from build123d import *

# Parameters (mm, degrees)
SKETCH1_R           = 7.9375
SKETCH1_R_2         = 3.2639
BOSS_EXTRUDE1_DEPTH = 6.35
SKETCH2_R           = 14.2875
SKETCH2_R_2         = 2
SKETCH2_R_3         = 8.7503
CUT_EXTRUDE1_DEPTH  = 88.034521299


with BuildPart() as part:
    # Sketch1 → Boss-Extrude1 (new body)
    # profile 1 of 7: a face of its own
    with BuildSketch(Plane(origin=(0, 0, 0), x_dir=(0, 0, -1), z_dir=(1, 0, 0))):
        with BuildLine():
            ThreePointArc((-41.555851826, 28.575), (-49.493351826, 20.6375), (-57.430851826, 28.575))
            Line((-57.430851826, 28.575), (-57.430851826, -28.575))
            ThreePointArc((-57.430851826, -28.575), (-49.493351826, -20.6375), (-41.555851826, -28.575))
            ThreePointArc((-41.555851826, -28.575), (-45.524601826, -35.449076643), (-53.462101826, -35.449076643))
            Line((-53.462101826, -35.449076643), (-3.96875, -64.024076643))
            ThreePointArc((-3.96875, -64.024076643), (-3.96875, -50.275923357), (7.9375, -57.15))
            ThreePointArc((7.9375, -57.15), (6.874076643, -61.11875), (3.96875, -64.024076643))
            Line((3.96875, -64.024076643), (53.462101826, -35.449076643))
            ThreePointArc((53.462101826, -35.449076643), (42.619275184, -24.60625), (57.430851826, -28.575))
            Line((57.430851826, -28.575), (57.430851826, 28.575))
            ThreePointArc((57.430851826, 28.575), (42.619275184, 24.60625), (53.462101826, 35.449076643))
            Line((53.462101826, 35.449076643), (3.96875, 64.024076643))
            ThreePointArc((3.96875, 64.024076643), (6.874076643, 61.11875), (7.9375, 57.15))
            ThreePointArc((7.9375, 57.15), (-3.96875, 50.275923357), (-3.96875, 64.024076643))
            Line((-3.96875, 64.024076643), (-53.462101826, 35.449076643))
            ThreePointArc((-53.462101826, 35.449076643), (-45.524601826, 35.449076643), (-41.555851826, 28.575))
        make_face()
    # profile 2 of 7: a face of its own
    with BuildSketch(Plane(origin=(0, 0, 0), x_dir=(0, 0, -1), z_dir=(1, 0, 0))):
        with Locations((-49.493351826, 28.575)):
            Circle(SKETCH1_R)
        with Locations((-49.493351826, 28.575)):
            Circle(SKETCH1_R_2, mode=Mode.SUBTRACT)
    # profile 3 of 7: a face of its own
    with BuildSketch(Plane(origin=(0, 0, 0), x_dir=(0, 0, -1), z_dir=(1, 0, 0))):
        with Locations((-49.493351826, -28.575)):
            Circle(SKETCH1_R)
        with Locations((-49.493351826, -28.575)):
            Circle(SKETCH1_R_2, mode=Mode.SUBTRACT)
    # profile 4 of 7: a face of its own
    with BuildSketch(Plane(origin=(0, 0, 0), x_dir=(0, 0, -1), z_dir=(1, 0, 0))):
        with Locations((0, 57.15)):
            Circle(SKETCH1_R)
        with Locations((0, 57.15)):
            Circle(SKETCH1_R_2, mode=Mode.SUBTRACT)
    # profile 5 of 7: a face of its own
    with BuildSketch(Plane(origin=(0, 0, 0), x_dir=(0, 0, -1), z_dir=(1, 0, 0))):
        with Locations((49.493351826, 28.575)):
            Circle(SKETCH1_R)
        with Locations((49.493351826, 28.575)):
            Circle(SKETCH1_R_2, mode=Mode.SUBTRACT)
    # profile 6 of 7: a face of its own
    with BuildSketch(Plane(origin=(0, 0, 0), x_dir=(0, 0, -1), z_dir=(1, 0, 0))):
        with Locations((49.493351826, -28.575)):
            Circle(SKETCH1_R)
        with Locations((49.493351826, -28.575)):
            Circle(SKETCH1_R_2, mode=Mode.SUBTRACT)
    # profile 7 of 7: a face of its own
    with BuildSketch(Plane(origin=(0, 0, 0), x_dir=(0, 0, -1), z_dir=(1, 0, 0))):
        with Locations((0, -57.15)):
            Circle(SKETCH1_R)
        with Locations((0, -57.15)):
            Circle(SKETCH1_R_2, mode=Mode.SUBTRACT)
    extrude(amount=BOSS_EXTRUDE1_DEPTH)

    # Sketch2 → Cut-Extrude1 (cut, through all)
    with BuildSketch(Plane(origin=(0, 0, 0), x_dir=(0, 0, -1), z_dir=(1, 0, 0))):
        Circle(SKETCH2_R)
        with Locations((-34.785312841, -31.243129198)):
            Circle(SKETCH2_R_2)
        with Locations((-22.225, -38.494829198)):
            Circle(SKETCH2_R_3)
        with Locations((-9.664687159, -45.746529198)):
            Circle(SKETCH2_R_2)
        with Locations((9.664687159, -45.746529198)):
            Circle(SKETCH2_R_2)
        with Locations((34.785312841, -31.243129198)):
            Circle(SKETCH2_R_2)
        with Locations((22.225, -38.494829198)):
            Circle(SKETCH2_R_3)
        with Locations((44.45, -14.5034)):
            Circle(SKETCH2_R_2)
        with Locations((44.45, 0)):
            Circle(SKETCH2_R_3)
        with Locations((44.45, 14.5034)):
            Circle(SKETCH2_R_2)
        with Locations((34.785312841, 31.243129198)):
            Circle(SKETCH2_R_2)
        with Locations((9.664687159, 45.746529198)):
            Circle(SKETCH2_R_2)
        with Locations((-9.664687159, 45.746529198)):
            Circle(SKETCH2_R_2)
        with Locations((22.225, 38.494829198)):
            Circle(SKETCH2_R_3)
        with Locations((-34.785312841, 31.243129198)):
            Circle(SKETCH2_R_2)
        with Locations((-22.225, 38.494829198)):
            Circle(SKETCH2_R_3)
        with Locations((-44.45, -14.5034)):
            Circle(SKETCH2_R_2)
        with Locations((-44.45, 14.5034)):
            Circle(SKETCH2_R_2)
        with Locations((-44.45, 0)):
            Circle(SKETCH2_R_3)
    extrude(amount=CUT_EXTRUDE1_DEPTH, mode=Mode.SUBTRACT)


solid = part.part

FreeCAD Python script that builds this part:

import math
import FreeCAD as App
import Part
import Sketcher

V = App.Vector
Q = App.Units.Quantity

doc = App.newDocument("Part")
body = doc.addObject("PartDesign::Body", "Body")

# Sketch on YZ plane
sketch1 = body.newObject("Sketcher::SketchObject", "Sketch")
sketch1.AttachmentSupport = (doc.getObject("YZ_Plane"), [""])
sketch1.MapMode = "FlatFace"
sketch1.addGeometry([
    Part.LineSegment(V(28.6, 57.4, 0), V(-28.6, 57.4, 0)),  # 0
    Part.ArcOfCircle(Part.Circle(V(-28.6, 49.5, 0), V(0, 0, 1), 7.9), math.radians(90), math.radians(150)),  # 1
    Part.LineSegment(V(-35.4, 53.5, 0), V(-64, 4, 0)),  # 2
    Part.ArcOfCircle(Part.Circle(V(-57.1, 0, 0), V(0, 0, 1), 7.9), math.radians(150), math.radians(210)),  # 3
    Part.LineSegment(V(-64, -4, 0), V(-35.4, -53.5, 0)),  # 4
    Part.ArcOfCircle(Part.Circle(V(-28.6, -49.5, 0), V(0, 0, 1), 7.9), math.radians(-150), math.radians(-90)),  # 5
    Part.LineSegment(V(-28.6, -57.4, 0), V(28.6, -57.4, 0)),  # 6
    Part.ArcOfCircle(Part.Circle(V(28.6, -49.5, 0), V(0, 0, 1), 7.9), math.radians(-90), math.radians(-30)),  # 7
    Part.LineSegment(V(35.4, -53.5, 0), V(64, -4, 0)),  # 8
    Part.ArcOfCircle(Part.Circle(V(57.1, 0, 0), V(0, 0, 1), 7.9), math.radians(-30), math.radians(30)),  # 9
    Part.LineSegment(V(64, 4, 0), V(35.4, 53.5, 0)),  # 10
    Part.ArcOfCircle(Part.Circle(V(28.6, 49.5, 0), V(0, 0, 1), 7.9), math.radians(30), math.radians(90)),  # 11
    Part.Circle(V(28.6, 49.5, 0), V(0, 0, 1), 3.3),  # 12
    Part.Circle(V(-28.6, 49.5, 0), V(0, 0, 1), 3.3),  # 13
    Part.Circle(V(-57.1, 0, 0), V(0, 0, 1), 3.3),  # 14
    Part.Circle(V(-28.6, -49.5, 0), V(0, 0, 1), 3.3),  # 15
    Part.Circle(V(28.6, -49.5, 0), V(0, 0, 1), 3.3),  # 16
    Part.Circle(V(57.1, 0, 0), V(0, 0, 1), 3.3),  # 17
], False)
sketch1.addConstraint([
    Sketcher.Constraint("Tangent", 0, 2, 1, 1),
    Sketcher.Constraint("Tangent", 1, 2, 2, 1),
    Sketcher.Constraint("Tangent", 2, 2, 3, 1),
    Sketcher.Constraint("Tangent", 3, 2, 4, 1),
    Sketcher.Constraint("Tangent", 4, 2, 5, 1),
    Sketcher.Constraint("Tangent", 5, 2, 6, 1),
    Sketcher.Constraint("Tangent", 6, 2, 7, 1),
    Sketcher.Constraint("Tangent", 7, 2, 8, 1),
    Sketcher.Constraint("Tangent", 8, 2, 9, 1),
    Sketcher.Constraint("Tangent", 9, 2, 10, 1),
    Sketcher.Constraint("Tangent", 10, 2, 11, 1),
    Sketcher.Constraint("Tangent", 11, 2, 0, 1),
    Sketcher.Constraint("Horizontal", 0),
    Sketcher.Constraint("Horizontal", 6),
    Sketcher.Constraint("Coincident", 12, 3, 11, 3),
    Sketcher.Constraint("Coincident", 13, 3, 1, 3),
    Sketcher.Constraint("Coincident", 14, 3, 3, 3),
    Sketcher.Constraint("Coincident", 15, 3, 5, 3),
    Sketcher.Constraint("Coincident", 16, 3, 7, 3),
    Sketcher.Constraint("Coincident", 17, 3, 9, 3),
    Sketcher.Constraint("Equal", 1, 3),
    Sketcher.Constraint("Equal", 3, 5),
    Sketcher.Constraint("Equal", 5, 7),
    Sketcher.Constraint("Equal", 7, 9),
    Sketcher.Constraint("Equal", 9, 11),
    Sketcher.Constraint("Equal", 12, 13),
    Sketcher.Constraint("Equal", 13, 14),
    Sketcher.Constraint("Equal", 14, 15),
    Sketcher.Constraint("Equal", 15, 16),
    Sketcher.Constraint("Equal", 16, 17),
    Sketcher.Constraint("Symmetric", 1, 3, 7, 3, -1, 1),
    Sketcher.Constraint("Symmetric", 3, 3, 9, 3, -1, 1),
    Sketcher.Constraint("Symmetric", 4, 2, 7, 2, -2),
    Sketcher.Constraint("Parallel", 4, 10),
    Sketcher.Constraint("Diameter", 12, Q("0.257 in")),
    Sketcher.Constraint("Angle", 2, Q("-120 deg")),
    Sketcher.Constraint("Radius", 1, Q("0.3125 in")),
    Sketcher.Constraint("DistanceX", 0, 2, 0, 1, Q("2.25 in")),
    Sketcher.Constraint("DistanceX", 3, 3, 9, 3, Q("4.5 in")),
])
pad1 = body.newObject("PartDesign::Pad", "Pad")
pad1.Profile = sketch1
pad1.Length = Q("0.25 in")

# Sketch on YZ plane
sketch2 = body.newObject("Sketcher::SketchObject", "Sketch001")
sketch2.AttachmentSupport = (doc.getObject("YZ_Plane"), [""])
sketch2.MapMode = "FlatFace"
sketch2.addGeometry([
    Part.Circle(V(0, 0, 0), V(0, 0, 1), 14.3),  # 0
    Part.Circle(V(-31.2, 34.8, 0), V(0, 0, 1), 2),  # 1
    Part.Circle(V(-38.5, 22.2, 0), V(0, 0, 1), 8.8),  # 2
    Part.Circle(V(-45.7, 9.7, 0), V(0, 0, 1), 2),  # 3
    Part.Circle(V(-45.7, -9.7, 0), V(0, 0, 1), 2),  # 4
    Part.Circle(V(-31.2, -34.8, 0), V(0, 0, 1), 2),  # 5
    Part.Circle(V(-38.5, -22.2, 0), V(0, 0, 1), 8.8),  # 6
    Part.Circle(V(-14.5, -44.5, 0), V(0, 0, 1), 2),  # 7
    Part.Circle(V(0, -44.5, 0), V(0, 0, 1), 8.8),  # 8
    Part.Circle(V(14.5, -44.5, 0), V(0, 0, 1), 2),  # 9
    Part.Circle(V(31.2, -34.8, 0), V(0, 0, 1), 2),  # 10
    Part.Circle(V(45.7, -9.7, 0), V(0, 0, 1), 2),  # 11
    Part.Circle(V(45.7, 9.7, 0), V(0, 0, 1), 2),  # 12
    Part.Circle(V(38.5, -22.2, 0), V(0, 0, 1), 8.8),  # 13
    Part.Circle(V(31.2, 34.8, 0), V(0, 0, 1), 2),  # 14
    Part.Circle(V(38.5, 22.2, 0), V(0, 0, 1), 8.8),  # 15
    Part.Circle(V(-14.5, 44.5, 0), V(0, 0, 1), 2),  # 16
    Part.Circle(V(14.5, 44.5, 0), V(0, 0, 1), 2),  # 17
    Part.Circle(V(0, 44.5, 0), V(0, 0, 1), 8.8),  # 18
], False)
sketch2.addConstraint([
    Sketcher.Constraint("Coincident", 0, 3, -1, 1),
    Sketcher.Constraint("Equal", 1, 3),
    Sketcher.Constraint("Equal", 3, 4),
    Sketcher.Constraint("Equal", 4, 5),
    Sketcher.Constraint("Equal", 2, 6),
    Sketcher.Constraint("Equal", 5, 7),
    Sketcher.Constraint("Equal", 6, 8),
    Sketcher.Constraint("Equal", 7, 9),
    Sketcher.Constraint("Equal", 9, 10),
    Sketcher.Constraint("Equal", 10, 11),
    Sketcher.Constraint("Equal", 11, 12),
    Sketcher.Constraint("Equal", 8, 13),
    Sketcher.Constraint("Equal", 12, 14),
    Sketcher.Constraint("Equal", 13, 15),
    Sketcher.Constraint("Equal", 14, 16),
    Sketcher.Constraint("Equal", 16, 17),
    Sketcher.Constraint("Equal", 15, 18),
    Sketcher.Constraint("Symmetric", 1, 3, 10, 3, -1, 1),
    Sketcher.Constraint("Symmetric", 3, 3, 11, 3, -1, 1),
    Sketcher.Constraint("Symmetric", 4, 3, 12, 3, -1, 1),
    Sketcher.Constraint("Symmetric", 2, 3, 13, 3, -1, 1),
    Sketcher.Constraint("Symmetric", 5, 3, 14, 3, -1, 1),
    Sketcher.Constraint("Symmetric", 6, 3, 15, 3, -1, 1),
    Sketcher.Constraint("Symmetric", 9, 3, 16, 3, -1, 1),
    Sketcher.Constraint("Symmetric", 7, 3, 17, 3, -1, 1),
    Sketcher.Constraint("Symmetric", 8, 3, 18, 3, -1, 1),
    Sketcher.Constraint("Symmetric", 7, 3, 9, 3, -2),
    Sketcher.Constraint("Symmetric", 5, 3, 10, 3, -2),
    Sketcher.Constraint("Symmetric", 4, 3, 11, 3, -2),
    Sketcher.Constraint("Symmetric", 6, 3, 13, 3, -2),
    Sketcher.Constraint("PointOnObject", 8, 3, -2),
    Sketcher.Constraint("Horizontal", 7, 3, 8, 3),
    Sketcher.Constraint("Diameter", 0, Q("1.125 in")),
    Sketcher.Constraint("Diameter", 2, Q("0.689 in")),
    Sketcher.Constraint("Diameter", 1, Q("4 mm")),
    Sketcher.Constraint("DistanceY", 7, 3, -1, 1, Q("1.75 in")),
    Sketcher.Constraint("DistanceY", 4, 3, 1, 3, Q("1.75 in")),
    Sketcher.Constraint("DistanceY", 6, 3, 2, 3, Q("1.75 in")),
    Sketcher.Constraint("DistanceX", 7, 3, -1, 1, Q("0.571 in")),
    Sketcher.Constraint("DistanceX", 3, 3, 1, 3, Q("0.571 in")),
    Sketcher.Constraint("DistanceX", 2, 3, 1, 3, Q("0.2855 in")),
    Sketcher.Constraint("DistanceX", 1, 3, -1, 1, Q("31.243129 mm")),
    Sketcher.Constraint("DistanceY", -1, 1, 1, 3, Q("34.785313 mm")),
])
pocket1 = body.newObject("PartDesign::Pocket", "Pocket")
pocket1.Profile = sketch2
pocket1.Type = "ThroughAll"
pocket1.Reversed = True

doc.recompute()
